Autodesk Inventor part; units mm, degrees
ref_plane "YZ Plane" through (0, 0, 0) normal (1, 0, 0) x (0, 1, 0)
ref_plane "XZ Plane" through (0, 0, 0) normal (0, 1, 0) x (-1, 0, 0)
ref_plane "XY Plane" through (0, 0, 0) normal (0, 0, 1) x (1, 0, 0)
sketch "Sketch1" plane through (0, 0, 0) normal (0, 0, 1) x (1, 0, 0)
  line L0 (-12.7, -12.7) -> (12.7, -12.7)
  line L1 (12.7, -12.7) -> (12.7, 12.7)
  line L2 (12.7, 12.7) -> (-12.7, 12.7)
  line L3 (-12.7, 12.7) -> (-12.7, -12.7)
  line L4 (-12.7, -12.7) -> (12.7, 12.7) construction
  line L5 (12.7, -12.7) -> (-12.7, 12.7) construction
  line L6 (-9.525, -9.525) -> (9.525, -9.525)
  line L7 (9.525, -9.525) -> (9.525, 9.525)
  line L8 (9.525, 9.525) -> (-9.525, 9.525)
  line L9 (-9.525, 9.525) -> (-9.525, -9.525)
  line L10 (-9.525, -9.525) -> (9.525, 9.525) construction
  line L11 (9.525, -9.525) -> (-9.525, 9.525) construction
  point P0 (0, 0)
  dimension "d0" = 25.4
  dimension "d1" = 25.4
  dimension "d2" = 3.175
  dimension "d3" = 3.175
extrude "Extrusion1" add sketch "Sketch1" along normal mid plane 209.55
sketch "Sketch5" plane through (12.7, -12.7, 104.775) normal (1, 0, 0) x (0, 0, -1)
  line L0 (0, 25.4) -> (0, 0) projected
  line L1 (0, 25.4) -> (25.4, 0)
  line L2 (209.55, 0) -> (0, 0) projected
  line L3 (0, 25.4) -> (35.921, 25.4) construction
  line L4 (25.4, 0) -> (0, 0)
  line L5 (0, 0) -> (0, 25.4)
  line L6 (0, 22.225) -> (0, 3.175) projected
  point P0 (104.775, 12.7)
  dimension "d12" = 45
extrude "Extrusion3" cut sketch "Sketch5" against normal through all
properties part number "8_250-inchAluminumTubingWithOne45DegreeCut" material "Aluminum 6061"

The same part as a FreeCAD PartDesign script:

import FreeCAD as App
import Part
import Sketcher
from FreeCAD import Vector
Q = App.Units.Quantity

doc = App.newDocument("Part")
params = doc.addObject("Spreadsheet::Sheet", "Params")
for row, (alias, value) in enumerate([
    ("sketch1_width", "1 in"),
    ("pad1_length", "8.25 in"),
    ("sketch2_width", "1 in"),
], start=1):
    params.set(f"A{row}", alias)
    params.set(f"B{row}", "=" + value)
    params.setAlias(f"B{row}", alias)

body = doc.addObject("PartDesign::Body", "Body")

sketch1 = body.newObject("Sketcher::SketchObject", "Sketch")
sketch1.AttachmentSupport = (doc.getObject("XY_Plane"), [""])
sketch1.MapMode = "FlatFace"
sketch1.addGeometry([
    Part.LineSegment(Vector(-13, 13, 0), Vector(-13, -13, 0)),
    Part.LineSegment(Vector(-13, -13, 0), Vector(13, -13, 0)),
    Part.LineSegment(Vector(13, -13, 0), Vector(13, 13, 0)),
    Part.LineSegment(Vector(13, 13, 0), Vector(-13, 13, 0)),
    Part.LineSegment(Vector(10, -10, 0), Vector(-10, -10, 0)),
    Part.LineSegment(Vector(-10, -10, 0), Vector(-10, 10, 0)),
    Part.LineSegment(Vector(-10, 10, 0), Vector(10, 10, 0)),
    Part.LineSegment(Vector(10, 10, 0), Vector(10, -10, 0)),
], False)
sketch1.addConstraint([
    Sketcher.Constraint("Coincident", 0, 2, 1, 1),
    Sketcher.Constraint("Coincident", 1, 2, 2, 1),
    Sketcher.Constraint("Coincident", 2, 2, 3, 1),
    Sketcher.Constraint("Coincident", 3, 2, 0, 1),
    Sketcher.Constraint("Coincident", 4, 2, 5, 1),
    Sketcher.Constraint("Coincident", 5, 2, 6, 1),
    Sketcher.Constraint("Coincident", 6, 2, 7, 1),
    Sketcher.Constraint("Coincident", 7, 2, 4, 1),
    Sketcher.Constraint("Vertical", 0),
    Sketcher.Constraint("Horizontal", 1),
    Sketcher.Constraint("Vertical", 2),
    Sketcher.Constraint("Horizontal", 3),
    Sketcher.Constraint("Horizontal", 4),
    Sketcher.Constraint("Vertical", 5),
    Sketcher.Constraint("Horizontal", 6),
    Sketcher.Constraint("Vertical", 7),
    Sketcher.Constraint("Symmetric", 0, 2, 2, 2, -1, 1),
    Sketcher.Constraint("Symmetric", 4, 2, 6, 2, -1, 1),
    Sketcher.Constraint("Equal", 3, 0),
    Sketcher.Constraint("Equal", 6, 5),
    Sketcher.Constraint("DistanceX", 1, 1, 1, 2, Q("1 in")),
    Sketcher.Constraint("DistanceX", 0, 2, 4, 2, Q("0.125 in")),
])
sketch1.setExpression("Constraints[20]", "Params.sketch1_width")
pad1 = body.newObject("PartDesign::Pad", "Pad")
pad1.Profile = sketch1
pad1.setExpression("Length", "Params.pad1_length")
pad1.Midplane = True

sketch2 = body.newObject("Sketcher::SketchObject", "Sketch001")
sketch2.AttachmentSupport = (doc.getObject("YZ_Plane"), [""])
sketch2.MapMode = "FlatFace"
sketch2.AttachmentOffset = App.Placement(Vector(0, 0, 0.5 * 25.4), App.Rotation())
sketch2.addGeometry([
    Part.LineSegment(Vector(-13, 79, 0), Vector(13, 105, 0)),
    Part.LineSegment(Vector(13, 105, 0), Vector(-13, 105, 0)),
    Part.LineSegment(Vector(-13, 105, 0), Vector(-13, 79, 0)),
], False)
sketch2.addConstraint([
    Sketcher.Constraint("Coincident", 0, 2, 1, 1),
    Sketcher.Constraint("Coincident", 1, 2, 2, 1),
    Sketcher.Constraint("Coincident", 2, 2, 0, 1),
    Sketcher.Constraint("Horizontal", 1),
    Sketcher.Constraint("Vertical", 2),
    Sketcher.Constraint("Equal", 1, 2),
    Sketcher.Constraint("DistanceX", 1, 2, 1, 1, Q("1 in")),
    Sketcher.Constraint("DistanceX", -1, 1, 0, 2, Q("0.5 in")),
    Sketcher.Constraint("DistanceY", -1, 1, 0, 2, Q("4.125 in")),
])
sketch2.setExpression("Constraints[6]", "Params.sketch2_width")
pocket1 = body.newObject("PartDesign::Pocket", "Pocket")
pocket1.Profile = sketch2
pocket1.Type = "ThroughAll"

doc.recompute()
